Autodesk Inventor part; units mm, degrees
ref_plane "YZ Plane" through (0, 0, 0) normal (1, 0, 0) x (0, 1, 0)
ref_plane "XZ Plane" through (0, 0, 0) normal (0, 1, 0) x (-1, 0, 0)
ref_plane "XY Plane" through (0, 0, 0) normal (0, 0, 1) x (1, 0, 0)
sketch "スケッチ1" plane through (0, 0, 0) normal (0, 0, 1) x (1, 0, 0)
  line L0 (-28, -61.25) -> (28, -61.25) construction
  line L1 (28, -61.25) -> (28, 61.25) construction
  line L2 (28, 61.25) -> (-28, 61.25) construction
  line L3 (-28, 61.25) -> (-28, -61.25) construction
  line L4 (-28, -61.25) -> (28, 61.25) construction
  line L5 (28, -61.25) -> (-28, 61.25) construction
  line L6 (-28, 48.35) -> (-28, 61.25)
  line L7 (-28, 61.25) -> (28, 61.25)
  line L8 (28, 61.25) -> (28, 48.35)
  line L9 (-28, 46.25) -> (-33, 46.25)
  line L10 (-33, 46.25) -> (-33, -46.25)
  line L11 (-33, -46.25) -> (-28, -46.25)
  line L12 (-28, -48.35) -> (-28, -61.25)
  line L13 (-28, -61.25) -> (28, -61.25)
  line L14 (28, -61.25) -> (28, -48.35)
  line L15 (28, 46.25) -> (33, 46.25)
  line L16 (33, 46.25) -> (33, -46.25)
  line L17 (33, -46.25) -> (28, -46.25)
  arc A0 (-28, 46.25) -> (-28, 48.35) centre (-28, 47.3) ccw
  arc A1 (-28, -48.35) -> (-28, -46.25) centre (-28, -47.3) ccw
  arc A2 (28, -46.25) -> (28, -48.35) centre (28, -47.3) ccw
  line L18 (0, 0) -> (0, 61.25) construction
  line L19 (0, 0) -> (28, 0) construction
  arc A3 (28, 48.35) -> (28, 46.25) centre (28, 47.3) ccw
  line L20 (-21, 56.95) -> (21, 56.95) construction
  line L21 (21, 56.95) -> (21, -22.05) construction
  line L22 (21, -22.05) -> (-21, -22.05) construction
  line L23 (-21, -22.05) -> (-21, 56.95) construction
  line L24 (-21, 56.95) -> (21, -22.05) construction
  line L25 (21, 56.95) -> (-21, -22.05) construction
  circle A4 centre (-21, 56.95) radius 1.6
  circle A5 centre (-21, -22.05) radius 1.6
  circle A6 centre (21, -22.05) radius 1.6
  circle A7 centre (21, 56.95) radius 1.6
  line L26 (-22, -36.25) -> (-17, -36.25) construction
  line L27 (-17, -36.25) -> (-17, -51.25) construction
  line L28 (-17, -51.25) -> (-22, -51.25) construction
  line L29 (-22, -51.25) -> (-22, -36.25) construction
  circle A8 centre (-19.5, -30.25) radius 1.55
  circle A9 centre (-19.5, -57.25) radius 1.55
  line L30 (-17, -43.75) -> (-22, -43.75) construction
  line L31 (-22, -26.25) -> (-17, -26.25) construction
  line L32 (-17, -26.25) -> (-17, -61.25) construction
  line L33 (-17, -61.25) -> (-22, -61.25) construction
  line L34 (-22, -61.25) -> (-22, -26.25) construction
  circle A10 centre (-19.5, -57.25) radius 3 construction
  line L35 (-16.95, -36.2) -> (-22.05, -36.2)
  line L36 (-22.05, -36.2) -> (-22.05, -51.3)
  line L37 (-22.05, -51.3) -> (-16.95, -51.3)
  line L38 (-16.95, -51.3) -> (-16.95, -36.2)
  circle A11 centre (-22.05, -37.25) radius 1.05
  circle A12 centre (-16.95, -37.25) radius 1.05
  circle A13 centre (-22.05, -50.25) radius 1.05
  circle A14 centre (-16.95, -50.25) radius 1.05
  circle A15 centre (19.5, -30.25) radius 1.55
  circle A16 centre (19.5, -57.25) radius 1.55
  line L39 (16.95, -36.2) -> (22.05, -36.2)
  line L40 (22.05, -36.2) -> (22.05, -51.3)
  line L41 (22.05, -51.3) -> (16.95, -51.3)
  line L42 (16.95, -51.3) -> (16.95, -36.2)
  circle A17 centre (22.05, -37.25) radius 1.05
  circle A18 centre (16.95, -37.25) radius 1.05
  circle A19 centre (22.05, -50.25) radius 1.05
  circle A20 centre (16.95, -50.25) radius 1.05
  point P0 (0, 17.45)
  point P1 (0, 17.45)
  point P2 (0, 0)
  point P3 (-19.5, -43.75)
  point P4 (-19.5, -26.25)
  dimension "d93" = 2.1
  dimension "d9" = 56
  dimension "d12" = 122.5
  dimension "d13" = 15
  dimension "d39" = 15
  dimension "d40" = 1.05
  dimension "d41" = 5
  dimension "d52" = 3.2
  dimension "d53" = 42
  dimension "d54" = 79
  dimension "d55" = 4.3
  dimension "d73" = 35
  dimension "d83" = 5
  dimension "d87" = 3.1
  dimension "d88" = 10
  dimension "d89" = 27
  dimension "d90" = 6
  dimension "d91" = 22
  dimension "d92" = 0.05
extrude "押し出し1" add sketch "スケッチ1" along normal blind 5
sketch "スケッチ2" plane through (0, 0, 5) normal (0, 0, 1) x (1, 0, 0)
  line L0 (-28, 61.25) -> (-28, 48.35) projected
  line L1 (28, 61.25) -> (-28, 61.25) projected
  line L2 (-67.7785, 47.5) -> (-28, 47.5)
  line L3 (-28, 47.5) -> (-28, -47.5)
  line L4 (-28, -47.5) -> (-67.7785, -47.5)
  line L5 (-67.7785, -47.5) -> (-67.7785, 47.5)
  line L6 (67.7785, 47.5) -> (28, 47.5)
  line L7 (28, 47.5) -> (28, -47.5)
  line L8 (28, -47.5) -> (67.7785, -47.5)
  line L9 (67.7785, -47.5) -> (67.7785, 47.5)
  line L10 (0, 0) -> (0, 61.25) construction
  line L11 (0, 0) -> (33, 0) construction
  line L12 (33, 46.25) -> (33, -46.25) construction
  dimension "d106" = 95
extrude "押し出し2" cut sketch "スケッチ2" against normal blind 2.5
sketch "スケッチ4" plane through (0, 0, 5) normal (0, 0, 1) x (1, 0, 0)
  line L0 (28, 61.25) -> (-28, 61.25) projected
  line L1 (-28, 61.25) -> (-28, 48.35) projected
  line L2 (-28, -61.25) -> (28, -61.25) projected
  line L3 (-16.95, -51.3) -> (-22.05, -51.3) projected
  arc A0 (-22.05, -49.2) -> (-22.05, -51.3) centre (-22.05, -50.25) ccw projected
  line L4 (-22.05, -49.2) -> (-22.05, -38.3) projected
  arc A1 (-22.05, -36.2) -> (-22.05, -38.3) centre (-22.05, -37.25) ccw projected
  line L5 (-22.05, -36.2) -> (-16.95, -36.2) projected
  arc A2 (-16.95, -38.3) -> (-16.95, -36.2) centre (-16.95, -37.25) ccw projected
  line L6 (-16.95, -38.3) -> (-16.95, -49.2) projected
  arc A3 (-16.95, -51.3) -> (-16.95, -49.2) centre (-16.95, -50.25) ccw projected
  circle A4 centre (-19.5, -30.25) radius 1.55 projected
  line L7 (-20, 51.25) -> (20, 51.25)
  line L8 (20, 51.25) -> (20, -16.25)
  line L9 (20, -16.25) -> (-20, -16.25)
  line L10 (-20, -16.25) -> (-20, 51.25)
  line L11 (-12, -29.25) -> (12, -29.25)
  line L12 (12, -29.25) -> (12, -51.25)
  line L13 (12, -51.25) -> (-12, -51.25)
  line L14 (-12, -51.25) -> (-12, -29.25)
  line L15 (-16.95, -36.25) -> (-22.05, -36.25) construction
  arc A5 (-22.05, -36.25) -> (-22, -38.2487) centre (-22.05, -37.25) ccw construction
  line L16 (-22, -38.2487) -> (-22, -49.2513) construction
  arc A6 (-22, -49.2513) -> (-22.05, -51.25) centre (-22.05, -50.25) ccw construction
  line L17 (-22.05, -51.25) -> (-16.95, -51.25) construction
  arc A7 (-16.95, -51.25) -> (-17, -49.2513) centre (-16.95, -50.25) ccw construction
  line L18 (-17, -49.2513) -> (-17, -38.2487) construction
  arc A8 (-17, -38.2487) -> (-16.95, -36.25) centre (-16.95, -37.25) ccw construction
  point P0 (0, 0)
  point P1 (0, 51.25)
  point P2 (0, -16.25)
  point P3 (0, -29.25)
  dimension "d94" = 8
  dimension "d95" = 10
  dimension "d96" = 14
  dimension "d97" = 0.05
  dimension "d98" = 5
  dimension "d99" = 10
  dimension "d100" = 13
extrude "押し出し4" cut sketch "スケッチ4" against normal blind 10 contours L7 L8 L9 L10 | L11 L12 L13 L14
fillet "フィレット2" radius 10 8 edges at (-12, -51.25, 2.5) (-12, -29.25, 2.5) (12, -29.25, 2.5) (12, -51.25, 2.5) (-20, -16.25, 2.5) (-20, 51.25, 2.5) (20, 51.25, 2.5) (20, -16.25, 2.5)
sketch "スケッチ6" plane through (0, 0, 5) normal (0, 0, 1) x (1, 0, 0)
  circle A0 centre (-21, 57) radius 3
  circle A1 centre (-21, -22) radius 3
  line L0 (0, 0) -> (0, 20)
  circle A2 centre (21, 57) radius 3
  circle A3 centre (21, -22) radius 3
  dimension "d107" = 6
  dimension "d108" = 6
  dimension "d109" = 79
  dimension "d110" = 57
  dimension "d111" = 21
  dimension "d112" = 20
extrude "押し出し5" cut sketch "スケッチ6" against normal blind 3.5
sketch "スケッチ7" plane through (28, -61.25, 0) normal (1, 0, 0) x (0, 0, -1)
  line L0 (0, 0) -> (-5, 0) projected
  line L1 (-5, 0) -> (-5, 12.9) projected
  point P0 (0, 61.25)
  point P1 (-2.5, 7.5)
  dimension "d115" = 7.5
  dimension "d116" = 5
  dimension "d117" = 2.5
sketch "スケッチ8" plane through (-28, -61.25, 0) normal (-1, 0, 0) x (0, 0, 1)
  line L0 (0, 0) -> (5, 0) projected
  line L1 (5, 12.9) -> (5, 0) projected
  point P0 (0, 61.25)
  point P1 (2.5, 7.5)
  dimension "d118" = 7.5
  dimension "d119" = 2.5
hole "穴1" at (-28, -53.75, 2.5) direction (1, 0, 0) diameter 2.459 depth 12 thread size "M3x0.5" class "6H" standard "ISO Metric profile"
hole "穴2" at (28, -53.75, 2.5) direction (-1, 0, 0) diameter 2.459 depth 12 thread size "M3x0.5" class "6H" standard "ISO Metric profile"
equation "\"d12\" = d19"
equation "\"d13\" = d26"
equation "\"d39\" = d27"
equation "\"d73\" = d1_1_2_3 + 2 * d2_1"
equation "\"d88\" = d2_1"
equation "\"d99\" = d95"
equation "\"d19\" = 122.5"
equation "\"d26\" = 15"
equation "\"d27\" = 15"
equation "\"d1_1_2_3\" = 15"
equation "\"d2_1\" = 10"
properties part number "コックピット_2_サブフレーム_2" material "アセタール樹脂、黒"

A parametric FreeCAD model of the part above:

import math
import FreeCAD as App
import Part
import Sketcher


def edges_at(feature, points):
    """Names of the edges that pass closest to the given points."""
    edges = feature.Shape.Edges
    near = lambda p: min(range(len(edges)), key=lambda i: edges[i].distToShape(Part.Vertex(*p))[0])
    return sorted({f"Edge{near(p) + 1}" for p in points})

doc = App.newDocument("Part")
body = doc.addObject("PartDesign::Body", "Body")

sketch1 = body.newObject("Sketcher::SketchObject", "Sketch")
sketch1.AttachmentSupport = (doc.getObject("XY_Plane"), [""])
sketch1.MapMode = "FlatFace"
sketch1.addGeometry([
    Part.LineSegment(App.Vector(-28, 61.2, 0), App.Vector(-28, 48.4, 0)),
    Part.ArcOfCircle(Part.Circle(App.Vector(-28, 47.3, 0), App.Vector(0, 0, 1), 1), math.radians(-90), math.radians(90)),
    Part.LineSegment(App.Vector(-28, 46.2, 0), App.Vector(-33, 46.2, 0)),
    Part.LineSegment(App.Vector(-33, 46.2, 0), App.Vector(-33, -46.2, 0)),
    Part.LineSegment(App.Vector(-33, -46.2, 0), App.Vector(-28, -46.2, 0)),
    Part.ArcOfCircle(Part.Circle(App.Vector(-28, -47.3, 0), App.Vector(0, 0, 1), 1.1), math.radians(-90), math.radians(90)),
    Part.LineSegment(App.Vector(-28, -48.4, 0), App.Vector(-28, -61.2, 0)),
    Part.LineSegment(App.Vector(-28, -61.2, 0), App.Vector(28, -61.2, 0)),
    Part.LineSegment(App.Vector(28, -61.2, 0), App.Vector(28, -48.4, 0)),
    Part.ArcOfCircle(Part.Circle(App.Vector(28, -47.3, 0), App.Vector(0, 0, 1), 1), math.radians(90), math.radians(270)),
    Part.LineSegment(App.Vector(28, -46.2, 0), App.Vector(33, -46.2, 0)),
    Part.LineSegment(App.Vector(33, -46.2, 0), App.Vector(33, 46.2, 0)),
    Part.LineSegment(App.Vector(33, 46.2, 0), App.Vector(28, 46.2, 0)),
    Part.ArcOfCircle(Part.Circle(App.Vector(28, 47.3, 0), App.Vector(0, 0, 1), 1.1), math.radians(90), math.radians(270)),
    Part.LineSegment(App.Vector(28, 48.4, 0), App.Vector(28, 61.2, 0)),
    Part.LineSegment(App.Vector(28, 61.2, 0), App.Vector(-28, 61.2, 0)),
    Part.Circle(App.Vector(-19.5, -57.2, 0), App.Vector(0, 0, 1), 1.6),
    Part.LineSegment(App.Vector(-22.1, -36.2, 0), App.Vector(-16.9, -36.2, 0)),
    Part.ArcOfCircle(Part.Circle(App.Vector(-16.9, -37.2, 0), App.Vector(0, 0, 1), 1.1), math.radians(-90), math.radians(90)),
    Part.LineSegment(App.Vector(-16.9, -38.3, 0), App.Vector(-16.9, -49.2, 0)),
    Part.ArcOfCircle(Part.Circle(App.Vector(-16.9, -50.2, 0), App.Vector(0, 0, 1), 1.1), math.radians(-90), math.radians(90)),
    Part.LineSegment(App.Vector(-16.9, -51.3, 0), App.Vector(-22.1, -51.3, 0)),
    Part.ArcOfCircle(Part.Circle(App.Vector(-22.1, -50.2, 0), App.Vector(0, 0, 1), 1.1), math.radians(90), math.radians(270)),
    Part.LineSegment(App.Vector(-22.1, -49.2, 0), App.Vector(-22.1, -38.3, 0)),
    Part.ArcOfCircle(Part.Circle(App.Vector(-22.1, -37.2, 0), App.Vector(0, 0, 1), 1.1), math.radians(90), math.radians(270)),
    Part.Circle(App.Vector(-19.5, -30.2, 0), App.Vector(0, 0, 1), 1.6),
    Part.Circle(App.Vector(-21, -22.1, 0), App.Vector(0, 0, 1), 1.6),
    Part.Circle(App.Vector(19.5, -57.2, 0), App.Vector(0, 0, 1), 1.6),
    Part.ArcOfCircle(Part.Circle(App.Vector(16.9, -37.2, 0), App.Vector(0, 0, 1), 1.1), math.radians(90), math.radians(270)),
    Part.LineSegment(App.Vector(16.9, -36.2, 0), App.Vector(22.1, -36.2, 0)),
    Part.ArcOfCircle(Part.Circle(App.Vector(22.1, -37.2, 0), App.Vector(0, 0, 1), 1.1), math.radians(-90), math.radians(90)),
    Part.LineSegment(App.Vector(22.1, -38.3, 0), App.Vector(22.1, -49.2, 0)),
    Part.ArcOfCircle(Part.Circle(App.Vector(22.1, -50.2, 0), App.Vector(0, 0, 1), 1.1), math.radians(-90), math.radians(90)),
    Part.LineSegment(App.Vector(22.1, -51.3, 0), App.Vector(16.9, -51.3, 0)),
    Part.ArcOfCircle(Part.Circle(App.Vector(16.9, -50.2, 0), App.Vector(0, 0, 1), 1.1), math.radians(90), math.radians(270)),
    Part.LineSegment(App.Vector(16.9, -49.2, 0), App.Vector(16.9, -38.3, 0)),
    Part.Circle(App.Vector(19.5, -30.2, 0), App.Vector(0, 0, 1), 1.6),
    Part.Circle(App.Vector(21, -22.1, 0), App.Vector(0, 0, 1), 1.6),
    Part.Circle(App.Vector(-21, 57, 0), App.Vector(0, 0, 1), 1.6),
    Part.Circle(App.Vector(21, 57, 0), App.Vector(0, 0, 1), 1.6),
], False)
sketch1.addConstraint([
    Sketcher.Constraint("Coincident", 0, 2, 1, 2),
    Sketcher.Constraint("Tangent", 1, 1, 2, 1),
    Sketcher.Constraint("Coincident", 2, 2, 3, 1),
    Sketcher.Constraint("Coincident", 3, 2, 4, 1),
    Sketcher.Constraint("Tangent", 4, 2, 5, 2),
    Sketcher.Constraint("Coincident", 5, 1, 6, 1),
    Sketcher.Constraint("Coincident", 6, 2, 7, 1),
    Sketcher.Constraint("Coincident", 7, 2, 8, 1),
    Sketcher.Constraint("Coincident", 8, 2, 9, 2),
    Sketcher.Constraint("Tangent", 9, 1, 10, 1),
    Sketcher.Constraint("Coincident", 10, 2, 11, 1),
    Sketcher.Constraint("Coincident", 11, 2, 12, 1),
    Sketcher.Constraint("Tangent", 12, 2, 13, 2),
    Sketcher.Constraint("Coincident", 13, 1, 14, 1),
    Sketcher.Constraint("Coincident", 14, 2, 15, 1),
    Sketcher.Constraint("Coincident", 15, 2, 0, 1),
    Sketcher.Constraint("Tangent", 17, 2, 18, 2),
    Sketcher.Constraint("Coincident", 18, 1, 19, 1),
    Sketcher.Constraint("Coincident", 19, 2, 20, 2),
    Sketcher.Constraint("Tangent", 20, 1, 21, 1),
    Sketcher.Constraint("Tangent", 21, 2, 22, 2),
    Sketcher.Constraint("Coincident", 22, 1, 23, 1),
    Sketcher.Constraint("Coincident", 23, 2, 24, 2),
    Sketcher.Constraint("Tangent", 24, 1, 17, 1),
    Sketcher.Constraint("Tangent", 28, 1, 29, 1),
    Sketcher.Constraint("Tangent", 29, 2, 30, 2),
    Sketcher.Constraint("Coincident", 30, 1, 31, 1),
    Sketcher.Constraint("Coincident", 31, 2, 32, 2),
    Sketcher.Constraint("Tangent", 32, 1, 33, 1),
    Sketcher.Constraint("Tangent", 33, 2, 34, 2),
    Sketcher.Constraint("Coincident", 34, 1, 35, 1),
    Sketcher.Constraint("Coincident", 35, 2, 28, 2),
    Sketcher.Constraint("Vertical", 0),
    Sketcher.Constraint("Horizontal", 2),
    Sketcher.Constraint("Vertical", 3),
    Sketcher.Constraint("Horizontal", 4),
    Sketcher.Constraint("Vertical", 6),
    Sketcher.Constraint("Horizontal", 7),
    Sketcher.Constraint("Vertical", 8),
    Sketcher.Constraint("Horizontal", 10),
    Sketcher.Constraint("Vertical", 11),
    Sketcher.Constraint("Horizontal", 12),
    Sketcher.Constraint("Vertical", 14),
    Sketcher.Constraint("Horizontal", 15),
    Sketcher.Constraint("Horizontal", 17),
    Sketcher.Constraint("Vertical", 19),
    Sketcher.Constraint("Horizontal", 21),
    Sketcher.Constraint("Vertical", 23),
    Sketcher.Constraint("Horizontal", 29),
    Sketcher.Constraint("Vertical", 31),
    Sketcher.Constraint("Horizontal", 33),
    Sketcher.Constraint("Vertical", 35),
    Sketcher.Constraint("Equal", 1, 5),
    Sketcher.Constraint("Equal", 5, 9),
    Sketcher.Constraint("Equal", 9, 13),
    Sketcher.Constraint("Equal", 13, 18),
    Sketcher.Constraint("Equal", 18, 20),
    Sketcher.Constraint("Equal", 20, 22),
    Sketcher.Constraint("Equal", 22, 24),
    Sketcher.Constraint("Equal", 16, 25),
    Sketcher.Constraint("Equal", 25, 27),
    Sketcher.Constraint("Equal", 24, 28),
    Sketcher.Constraint("Equal", 28, 30),
    Sketcher.Constraint("Equal", 30, 32),
    Sketcher.Constraint("Equal", 32, 34),
    Sketcher.Constraint("Equal", 27, 36),
    Sketcher.Constraint("Equal", 26, 37),
    Sketcher.Constraint("Equal", 37, 38),
    Sketcher.Constraint("Equal", 38, 39),
    Sketcher.Constraint("Symmetric", 1, 3, 9, 3, -1, 1),
    Sketcher.Constraint("Symmetric", 5, 3, 13, 3, -1, 1),
    Sketcher.Constraint("Symmetric", 6, 2, 14, 2, -1, 1),
    Sketcher.Constraint("Symmetric", 5, 3, 9, 3, -2),
    Sketcher.Constraint("Symmetric", 16, 3, 27, 3, -2),
    Sketcher.Constraint("Symmetric", 18, 3, 28, 3, -2),
    Sketcher.Constraint("Symmetric", 22, 3, 32, 3, -2),
    Sketcher.Constraint("Symmetric", 25, 3, 36, 3, -2),
    Sketcher.Constraint("Symmetric", 26, 3, 37, 3, -2),
    Sketcher.Constraint("Symmetric", 38, 3, 39, 3, -2),
    Sketcher.Constraint("Vertical", 18, 3, 20, 3),
    Sketcher.Constraint("Vertical", 22, 3, 24, 3),
    Sketcher.Constraint("Vertical", 16, 3, 25, 3),
    Sketcher.Constraint("Vertical", 30, 3, 32, 3),
    Sketcher.Constraint("Vertical", 28, 3, 34, 3),
    Sketcher.Constraint("Vertical", 26, 3, 38, 3),
    Sketcher.Constraint("Vertical", 5, 3, 0, 2),
    Sketcher.Constraint("Vertical", 4, 2, 5, 1),
    Sketcher.Constraint("Vertical", 13, 3, 7, 2),
    Sketcher.Constraint("Vertical", 17, 2, 18, 1),
    Sketcher.Constraint("Vertical", 21, 2, 22, 1),
    Sketcher.Constraint("Vertical", 29, 2, 30, 1),
    Sketcher.Constraint("Vertical", 33, 2, 34, 1),
    Sketcher.Constraint("Equal", 4, 10),
    Sketcher.Constraint("Diameter", 16, 3.1),
    Sketcher.Constraint("Diameter", 26, 3.2),
    Sketcher.Constraint("DistanceX", 2, 2, 2, 1, 5.0),
    Sketcher.Constraint("DistanceX", 7, 1, 7, 2, 56.0),
    Sketcher.Constraint("Radius", 1, 1.05),
    Sketcher.Constraint("DistanceY", 26, 3, 38, 3, 79.0),
    Sketcher.Constraint("DistanceX", 38, 3, 37, 3, 42.0),
    Sketcher.Constraint("DistanceY", 6, 2, 4, 2, 15.0),
    Sketcher.Constraint("DistanceY", 39, 3, 14, 2, 4.3),
    Sketcher.Constraint("DistanceX", 24, 3, 26, 3, 1.05),
    Sketcher.Constraint("DistanceX", 17, 1, 17, 2, 5.1),
    Sketcher.Constraint("DistanceY", 3, 2, 3, 1, 92.5),
    Sketcher.Constraint("DistanceY", 19, 2, 19, 1, 10.9),
    Sketcher.Constraint("DistanceY", 16, 3, 18, 3, 20.0),
    Sketcher.Constraint("DistanceY", 18, 3, 25, 3, 7.0),
    Sketcher.Constraint("DistanceX", 16, 3, 27, 3, 39.0),
    Sketcher.Constraint("DistanceY", 22, 3, 3, 2, 4.0),
])
pad1 = body.newObject("PartDesign::Pad", "Pad")
pad1.Profile = sketch1
pad1.Length = 5

sketch2 = body.newObject("Sketcher::SketchObject", "Sketch001")
sketch2.AttachmentSupport = (doc.getObject("XY_Plane"), [""])
sketch2.MapMode = "FlatFace"
sketch2.AttachmentOffset = App.Placement(App.Vector(0, 0, 5), App.Rotation())
sketch2.addGeometry([
    Part.LineSegment(App.Vector(-28, 48, 0), App.Vector(-68, 48, 0)),
    Part.LineSegment(App.Vector(-68, 48, 0), App.Vector(-68, -48, 0)),
    Part.LineSegment(App.Vector(-68, -48, 0), App.Vector(-28, -48, 0)),
    Part.LineSegment(App.Vector(-28, -48, 0), App.Vector(-28, 48, 0)),
    Part.LineSegment(App.Vector(68, -48, 0), App.Vector(68, 48, 0)),
    Part.LineSegment(App.Vector(68, 48, 0), App.Vector(28, 48, 0)),
    Part.LineSegment(App.Vector(28, 48, 0), App.Vector(28, -48, 0)),
    Part.LineSegment(App.Vector(28, -48, 0), App.Vector(68, -48, 0)),
], False)
sketch2.addConstraint([
    Sketcher.Constraint("Coincident", 0, 2, 1, 1),
    Sketcher.Constraint("Coincident", 1, 2, 2, 1),
    Sketcher.Constraint("Coincident", 2, 2, 3, 1),
    Sketcher.Constraint("Coincident", 3, 2, 0, 1),
    Sketcher.Constraint("Coincident", 4, 2, 5, 1),
    Sketcher.Constraint("Coincident", 5, 2, 6, 1),
    Sketcher.Constraint("Coincident", 6, 2, 7, 1),
    Sketcher.Constraint("Coincident", 7, 2, 4, 1),
    Sketcher.Constraint("Horizontal", 0),
    Sketcher.Constraint("Vertical", 1),
    Sketcher.Constraint("Horizontal", 2),
    Sketcher.Constraint("Vertical", 3),
    Sketcher.Constraint("Vertical", 4),
    Sketcher.Constraint("Horizontal", 5),
    Sketcher.Constraint("Vertical", 6),
    Sketcher.Constraint("Horizontal", 7),
    Sketcher.Constraint("Symmetric", 1, 2, 4, 2, -1, 1),
    Sketcher.Constraint("Symmetric", 3, 2, 6, 2, -1, 1),
    Sketcher.Constraint("Horizontal", 3, 2, 4, 2),
    Sketcher.Constraint("DistanceY", 1, 2, 1, 1, 95.0),
    Sketcher.Constraint("DistanceX", 2, 2, -1, 1, 28.0),
    Sketcher.Constraint("DistanceX", 0, 2, 0, 1, 39.7785),
])
pocket1 = body.newObject("PartDesign::Pocket", "Pocket")
pocket1.Profile = sketch2
pocket1.Length = 2.5

sketch3 = body.newObject("Sketcher::SketchObject", "Sketch002")
sketch3.AttachmentSupport = (doc.getObject("XY_Plane"), [""])
sketch3.MapMode = "FlatFace"
sketch3.AttachmentOffset = App.Placement(App.Vector(0, 0, 5), App.Rotation())
sketch3.addGeometry([
    Part.LineSegment(App.Vector(20, 51, 0), App.Vector(-20, 51, 0)),
    Part.LineSegment(App.Vector(-20, 51, 0), App.Vector(-20, -16, 0)),
    Part.LineSegment(App.Vector(-20, -16, 0), App.Vector(20, -16, 0)),
    Part.LineSegment(App.Vector(20, -16, 0), App.Vector(20, 51, 0)),
    Part.LineSegment(App.Vector(12, -29, 0), App.Vector(-12, -29, 0)),
    Part.LineSegment(App.Vector(-12, -29, 0), App.Vector(-12, -51, 0)),
    Part.LineSegment(App.Vector(-12, -51, 0), App.Vector(12, -51, 0)),
    Part.LineSegment(App.Vector(12, -51, 0), App.Vector(12, -29, 0)),
], False)
sketch3.addConstraint([
    Sketcher.Constraint("Coincident", 0, 2, 1, 1),
    Sketcher.Constraint("Coincident", 1, 2, 2, 1),
    Sketcher.Constraint("Coincident", 2, 2, 3, 1),
    Sketcher.Constraint("Coincident", 3, 2, 0, 1),
    Sketcher.Constraint("Coincident", 4, 2, 5, 1),
    Sketcher.Constraint("Coincident", 5, 2, 6, 1),
    Sketcher.Constraint("Coincident", 6, 2, 7, 1),
    Sketcher.Constraint("Coincident", 7, 2, 4, 1),
    Sketcher.Constraint("Horizontal", 0),
    Sketcher.Constraint("Vertical", 1),
    Sketcher.Constraint("Horizontal", 2),
    Sketcher.Constraint("Vertical", 3),
    Sketcher.Constraint("Horizontal", 4),
    Sketcher.Constraint("Vertical", 5),
    Sketcher.Constraint("Horizontal", 6),
    Sketcher.Constraint("Vertical", 7),
    Sketcher.Constraint("DistanceX", 1, 2, 4, 2, 8.0),
    Sketcher.Constraint("DistanceY", 4, 2, 1, 2, 13.0),
    Sketcher.Constraint("DistanceX", 6, 2, 2, 2, 8.0),
    Sketcher.Constraint("DistanceX", 0, 2, 0, 1, 40.0),
    Sketcher.Constraint("DistanceY", 5, 2, 5, 1, 22.0),
    Sketcher.Constraint("DistanceY", 1, 2, 1, 1, 67.5),
    Sketcher.Constraint("DistanceX", 0, 2, -1, 1, 20.0),
    Sketcher.Constraint("DistanceY", -1, 1, 0, 2, 51.25),
])
pocket2 = body.newObject("PartDesign::Pocket", "Pocket001")
pocket2.Profile = sketch3
pocket2.Length = 10
doc.recompute()

fillet = body.newObject("PartDesign::Fillet", "Fillet")
fillet.Base = (pocket2, edges_at(pocket2, [
    (-12, -51.25, 2.5),
    (-12, -29.25, 2.5),
    (12, -29.25, 2.5),
    (12, -51.25, 2.5),
    (-20, -16.25, 2.5),
    (-20, 51.25, 2.5),
    (20, 51.25, 2.5),
    (20, -16.25, 2.5),
]))
fillet.Radius = 10

sketch4 = body.newObject("Sketcher::SketchObject", "Sketch003")
sketch4.AttachmentSupport = (doc.getObject("XY_Plane"), [""])
sketch4.MapMode = "FlatFace"
sketch4.AttachmentOffset = App.Placement(App.Vector(0, 0, 5), App.Rotation())
sketch4.addGeometry([
    Part.Circle(App.Vector(-21, 57, 0), App.Vector(0, 0, 1), 3),
    Part.Circle(App.Vector(-21, -22, 0), App.Vector(0, 0, 1), 3),
    Part.Circle(App.Vector(21, 57, 0), App.Vector(0, 0, 1), 3),
    Part.Circle(App.Vector(21, -22, 0), App.Vector(0, 0, 1), 3),
], False)
sketch4.addConstraint([
    Sketcher.Constraint("Equal", 0, 1),
    Sketcher.Constraint("Equal", 1, 2),
    Sketcher.Constraint("Equal", 2, 3),
    Sketcher.Constraint("Symmetric", 0, 3, 2, 3, -2),
    Sketcher.Constraint("Symmetric", 1, 3, 3, 3, -2),
    Sketcher.Constraint("Vertical", 0, 3, 1, 3),
    Sketcher.Constraint("Diameter", 0, 6.0),
    Sketcher.Constraint("DistanceX", 0, 3, -1, 1, 21.0),
    Sketcher.Constraint("DistanceY", -1, 1, 0, 3, 57.0),
    Sketcher.Constraint("DistanceY", 1, 3, 0, 3, 79.0),
])
pocket3 = body.newObject("PartDesign::Pocket", "Pocket002")
pocket3.Profile = sketch4
pocket3.Length = 3.5

sketch5 = body.newObject("Sketcher::SketchObject", "Sketch004")
sketch5.AttachmentSupport = (doc.getObject("YZ_Plane"), [""])
sketch5.MapMode = "FlatFace"
sketch5.AttachmentOffset = App.Placement(App.Vector(0, 0, -28), App.Rotation())
sketch5.addGeometry(Part.Circle(App.Vector(-53.8, 2.5, 0), App.Vector(0, 0, 1), 1.2), False)
sketch5.addConstraint([
    Sketcher.Constraint("Diameter", 0, 2.459),
    Sketcher.Constraint("DistanceY", -1, 1, 0, 3, 2.5),
    Sketcher.Constraint("DistanceX", 0, 3, -1, 1, 53.75),
])
doc.recompute()
hole = body.newObject("PartDesign::Hole", "Hole")
hole.Profile = sketch5
hole.ThreadType = "None"
hole.Diameter = 2.459
hole.DepthType = "Dimension"
hole.Depth = 12
hole.DrillPoint = "Flat"
hole.Reversed = True

sketch6 = body.newObject("Sketcher::SketchObject", "Sketch005")
sketch6.AttachmentSupport = (doc.getObject("YZ_Plane"), [""])
sketch6.MapMode = "FlatFace"
sketch6.AttachmentOffset = App.Placement(App.Vector(0, 0, 28), App.Rotation())
sketch6.addGeometry(Part.Circle(App.Vector(-53.8, 2.5, 0), App.Vector(0, 0, 1), 1.2), False)
sketch6.addConstraint([
    Sketcher.Constraint("Diameter", 0, 2.459),
    Sketcher.Constraint("DistanceY", -1, 1, 0, 3, 2.5),
    Sketcher.Constraint("DistanceX", 0, 3, -1, 1, 53.75),
])
doc.recompute()
hole2 = body.newObject("PartDesign::Hole", "Hole001")
hole2.Profile = sketch6
hole2.ThreadType = "None"
hole2.Diameter = 2.459
hole2.DepthType = "Dimension"
hole2.Depth = 12
hole2.DrillPoint = "Flat"

doc.recompute()
